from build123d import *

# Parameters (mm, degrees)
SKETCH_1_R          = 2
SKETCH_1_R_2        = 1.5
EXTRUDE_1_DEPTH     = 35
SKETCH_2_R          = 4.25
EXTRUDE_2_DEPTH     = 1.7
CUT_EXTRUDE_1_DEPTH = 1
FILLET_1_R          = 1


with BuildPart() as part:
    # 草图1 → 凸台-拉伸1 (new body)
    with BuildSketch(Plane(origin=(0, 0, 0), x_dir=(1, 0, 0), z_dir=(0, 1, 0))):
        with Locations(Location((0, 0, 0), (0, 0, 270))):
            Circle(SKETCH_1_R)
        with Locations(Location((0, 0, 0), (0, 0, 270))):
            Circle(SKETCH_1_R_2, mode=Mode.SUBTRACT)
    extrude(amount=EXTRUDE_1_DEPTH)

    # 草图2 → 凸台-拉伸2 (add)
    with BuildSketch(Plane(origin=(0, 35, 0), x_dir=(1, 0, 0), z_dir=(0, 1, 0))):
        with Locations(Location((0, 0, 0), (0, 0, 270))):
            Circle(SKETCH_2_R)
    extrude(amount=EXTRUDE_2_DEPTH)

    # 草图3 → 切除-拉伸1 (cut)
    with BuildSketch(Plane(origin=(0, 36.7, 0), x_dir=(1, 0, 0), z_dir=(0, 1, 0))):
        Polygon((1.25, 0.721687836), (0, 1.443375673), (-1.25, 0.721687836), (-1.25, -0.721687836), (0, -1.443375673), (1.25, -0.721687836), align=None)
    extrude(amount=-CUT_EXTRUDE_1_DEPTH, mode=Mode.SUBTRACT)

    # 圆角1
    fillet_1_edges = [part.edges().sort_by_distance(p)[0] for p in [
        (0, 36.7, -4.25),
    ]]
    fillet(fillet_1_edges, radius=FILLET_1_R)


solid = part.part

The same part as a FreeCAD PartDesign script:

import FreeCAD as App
import Part
import Sketcher

V = App.Vector
Q = App.Units.Quantity


def edges_at(feature, points):
    """Names of the edges that pass closest to the given points."""
    edges = feature.Shape.Edges
    near = lambda p: min(range(len(edges)), key=lambda i: edges[i].distToShape(Part.Vertex(*p))[0])
    return sorted({f"Edge{near(p) + 1}" for p in points})

doc = App.newDocument("Part")
params = doc.addObject("Spreadsheet::Sheet", "Params")
for row, (alias, value) in enumerate([
    ("sketch1_diameter", "4 mm"),
    ("sketch1_diameter2", "3 mm"),
    ("pad1_length", "35 mm"),
    ("sketch2_diameter", "8.5 mm"),
    ("pad2_length", "1.7 mm"),
    ("pocket1_length", "1 mm"),
    ("fillet_radius", "1 mm"),
], start=1):
    params.set(f"A{row}", alias)
    params.set(f"B{row}", "=" + value)
    params.setAlias(f"B{row}", alias)

body = doc.addObject("PartDesign::Body", "Body")

# Sketch on XZ plane
sketch1 = body.newObject("Sketcher::SketchObject", "Sketch")
sketch1.AttachmentSupport = (doc.getObject("XZ_Plane"), [""])
sketch1.MapMode = "FlatFace"
sketch1.addGeometry(Part.Circle(V(0, 0, 0), V(0, 0, 1), 2), False)
sketch1.addGeometry(Part.Circle(V(0, 0, 0), V(0, 0, 1), 1.5), False)
sketch1.addConstraint(Sketcher.Constraint("Coincident", 0, 3, -1, 1))
sketch1.addConstraint(Sketcher.Constraint("Coincident", 1, 3, -1, 1))
sketch1.addConstraint(Sketcher.Constraint("Diameter", 0, 4.0))
sketch1.addConstraint(Sketcher.Constraint("Diameter", 1, 3.0))
sketch1.setExpression("Constraints[2]", "Params.sketch1_diameter")
sketch1.setExpression("Constraints[3]", "Params.sketch1_diameter2")
pad1 = body.newObject("PartDesign::Pad", "Pad")
pad1.Profile = sketch1
pad1.setExpression("Length", "Params.pad1_length")
pad1.Reversed = True

# Sketch on XZ plane
sketch2 = body.newObject("Sketcher::SketchObject", "Sketch001")
sketch2.AttachmentSupport = (doc.getObject("XZ_Plane"), [""])
sketch2.MapMode = "FlatFace"
sketch2.AttachmentOffset = App.Placement(V(0, 0, -35), App.Rotation())
sketch2.addGeometry(Part.Circle(V(0, 0, 0), V(0, 0, 1), 4.25), False)
sketch2.addConstraint(Sketcher.Constraint("Coincident", 0, 3, -1, 1))
sketch2.addConstraint(Sketcher.Constraint("Diameter", 0, 8.5))
sketch2.setExpression("Constraints[1]", "Params.sketch2_diameter")
pad2 = body.newObject("PartDesign::Pad", "Pad001")
pad2.Profile = sketch2
pad2.setExpression("Length", "Params.pad2_length")
pad2.Reversed = True

# Sketch on XZ plane
sketch3 = body.newObject("Sketcher::SketchObject", "Sketch002")
sketch3.AttachmentSupport = (doc.getObject("XZ_Plane"), [""])
sketch3.MapMode = "FlatFace"
sketch3.AttachmentOffset = App.Placement(V(0, 0, -36.7), App.Rotation())
sketch3.addGeometry(Part.LineSegment(V(1.25, -0.721688, 0), V(0, -1.443376, 0)), False)
sketch3.addGeometry(Part.LineSegment(V(0, -1.443376, 0), V(-1.25, -0.721688, 0)), False)
sketch3.addGeometry(Part.LineSegment(V(-1.25, -0.721688, 0), V(-1.25, 0.721688, 0)), False)
sketch3.addGeometry(Part.LineSegment(V(-1.25, 0.721688, 0), V(0, 1.443376, 0)), False)
sketch3.addGeometry(Part.LineSegment(V(0, 1.443376, 0), V(1.25, 0.721688, 0)), False)
sketch3.addGeometry(Part.LineSegment(V(1.25, 0.721688, 0), V(1.25, -0.721688, 0)), False)
sketch3.addConstraint(Sketcher.Constraint("Coincident", 0, 2, 1, 1))
sketch3.addConstraint(Sketcher.Constraint("Coincident", 1, 2, 2, 1))
sketch3.addConstraint(Sketcher.Constraint("Coincident", 2, 2, 3, 1))
sketch3.addConstraint(Sketcher.Constraint("Coincident", 3, 2, 4, 1))
sketch3.addConstraint(Sketcher.Constraint("Coincident", 4, 2, 5, 1))
sketch3.addConstraint(Sketcher.Constraint("Coincident", 5, 2, 0, 1))
sketch3.addConstraint(Sketcher.Constraint("Vertical", 2))
sketch3.addConstraint(Sketcher.Constraint("Vertical", 5))
sketch3.addConstraint(Sketcher.Constraint("Symmetric", 0, 2, 3, 2, -1, 1))
sketch3.addConstraint(Sketcher.Constraint("Symmetric", 1, 2, 4, 2, -1, 1))
sketch3.addConstraint(Sketcher.Constraint("PointOnObject", 0, 2, -2))
sketch3.addConstraint(Sketcher.Constraint("Parallel", 0, 3))
sketch3.addConstraint(Sketcher.Constraint("Horizontal", 2, 2, 4, 2))
sketch3.addConstraint(Sketcher.Constraint("Angle", 0, Q("-150 deg")))
sketch3.addConstraint(Sketcher.Constraint("DistanceX", 2, 2, 4, 2, 2.5))
sketch3.addConstraint(Sketcher.Constraint("DistanceY", 2, 1, 2, 2, 1.443376))
pocket1 = body.newObject("PartDesign::Pocket", "Pocket")
pocket1.Profile = sketch3
pocket1.setExpression("Length", "Params.pocket1_length")
pocket1.Reversed = True
doc.recompute()

fillet = body.newObject("PartDesign::Fillet", "Fillet")
fillet.Base = (pocket1, edges_at(pocket1, [(0, 36.7, -4.25)]))
fillet.setExpression("Radius", "Params.fillet_radius")

doc.recompute()
